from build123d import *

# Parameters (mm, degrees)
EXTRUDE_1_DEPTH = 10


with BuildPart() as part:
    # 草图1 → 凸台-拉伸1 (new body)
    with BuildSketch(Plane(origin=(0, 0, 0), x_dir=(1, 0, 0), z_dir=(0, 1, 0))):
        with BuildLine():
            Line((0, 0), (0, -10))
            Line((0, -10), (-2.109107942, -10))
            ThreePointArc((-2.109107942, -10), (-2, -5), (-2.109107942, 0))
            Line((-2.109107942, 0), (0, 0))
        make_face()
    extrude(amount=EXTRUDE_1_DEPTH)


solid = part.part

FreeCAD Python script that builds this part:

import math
import FreeCAD as App
import Part
import Sketcher
from FreeCAD import Vector
Q = App.Units.Quantity

doc = App.newDocument("Part")
params = doc.addObject("Spreadsheet::Sheet", "Params")
for row, (alias, value) in enumerate([
    ("sketch1_height", "10 mm"),
    ("sketch1_radius", "114.62 mm"),
    ("pad1_length", "10 mm"),
], start=1):
    params.set(f"A{row}", alias)
    params.set(f"B{row}", "=" + value)
    params.setAlias(f"B{row}", alias)

body = doc.addObject("PartDesign::Body", "Body")

# Sketch on XZ plane
sketch1 = body.newObject("Sketcher::SketchObject", "Sketch")
sketch1.AttachmentSupport = (doc.getObject("XZ_Plane"), [""])
sketch1.MapMode = "FlatFace"
sketch1.addGeometry(Part.LineSegment(Vector(0, 10, 0), Vector(0, 0, 0)), False)
sketch1.addGeometry(Part.LineSegment(Vector(0, 0, 0), Vector(-2.1, 0, 0)), False)
sketch1.addGeometry(Part.ArcOfCircle(Part.Circle(Vector(-116.6, 5, 0), Vector(0, 0, 1), 114.6), math.radians(-2.5), math.radians(2.5)), False)
sketch1.addGeometry(Part.LineSegment(Vector(-2.1, 10, 0), Vector(0, 10, 0)), False)
sketch1.addConstraint(Sketcher.Constraint("Coincident", 0, 2, 1, 1))
sketch1.addConstraint(Sketcher.Constraint("Coincident", 1, 2, 2, 1))
sketch1.addConstraint(Sketcher.Constraint("Coincident", 2, 2, 3, 1))
sketch1.addConstraint(Sketcher.Constraint("Coincident", 3, 2, 0, 1))
sketch1.addConstraint(Sketcher.Constraint("Vertical", 0))
sketch1.addConstraint(Sketcher.Constraint("Horizontal", 1))
sketch1.addConstraint(Sketcher.Constraint("Horizontal", 3))
sketch1.addConstraint(Sketcher.Constraint("Coincident", 0, 2, -1, 1))
sketch1.addConstraint(Sketcher.Constraint("Vertical", 1, 2, 2, 2))
sketch1.addConstraint(Sketcher.Constraint("DistanceY", 0, 2, 0, 1, Q("10 mm")))
sketch1.addConstraint(Sketcher.Constraint("Radius", 2, Q("114.62 mm")))
sketch1.addConstraint(Sketcher.Constraint("DistanceX", 2, 3, -1, 1, Q("116.62 mm")))
sketch1.setExpression("Constraints[9]", "Params.sketch1_height")
sketch1.setExpression("Constraints[10]", "Params.sketch1_radius")
pad1 = body.newObject("PartDesign::Pad", "Pad")
pad1.Profile = sketch1
pad1.setExpression("Length", "Params.pad1_length")
pad1.Reversed = True

doc.recompute()
